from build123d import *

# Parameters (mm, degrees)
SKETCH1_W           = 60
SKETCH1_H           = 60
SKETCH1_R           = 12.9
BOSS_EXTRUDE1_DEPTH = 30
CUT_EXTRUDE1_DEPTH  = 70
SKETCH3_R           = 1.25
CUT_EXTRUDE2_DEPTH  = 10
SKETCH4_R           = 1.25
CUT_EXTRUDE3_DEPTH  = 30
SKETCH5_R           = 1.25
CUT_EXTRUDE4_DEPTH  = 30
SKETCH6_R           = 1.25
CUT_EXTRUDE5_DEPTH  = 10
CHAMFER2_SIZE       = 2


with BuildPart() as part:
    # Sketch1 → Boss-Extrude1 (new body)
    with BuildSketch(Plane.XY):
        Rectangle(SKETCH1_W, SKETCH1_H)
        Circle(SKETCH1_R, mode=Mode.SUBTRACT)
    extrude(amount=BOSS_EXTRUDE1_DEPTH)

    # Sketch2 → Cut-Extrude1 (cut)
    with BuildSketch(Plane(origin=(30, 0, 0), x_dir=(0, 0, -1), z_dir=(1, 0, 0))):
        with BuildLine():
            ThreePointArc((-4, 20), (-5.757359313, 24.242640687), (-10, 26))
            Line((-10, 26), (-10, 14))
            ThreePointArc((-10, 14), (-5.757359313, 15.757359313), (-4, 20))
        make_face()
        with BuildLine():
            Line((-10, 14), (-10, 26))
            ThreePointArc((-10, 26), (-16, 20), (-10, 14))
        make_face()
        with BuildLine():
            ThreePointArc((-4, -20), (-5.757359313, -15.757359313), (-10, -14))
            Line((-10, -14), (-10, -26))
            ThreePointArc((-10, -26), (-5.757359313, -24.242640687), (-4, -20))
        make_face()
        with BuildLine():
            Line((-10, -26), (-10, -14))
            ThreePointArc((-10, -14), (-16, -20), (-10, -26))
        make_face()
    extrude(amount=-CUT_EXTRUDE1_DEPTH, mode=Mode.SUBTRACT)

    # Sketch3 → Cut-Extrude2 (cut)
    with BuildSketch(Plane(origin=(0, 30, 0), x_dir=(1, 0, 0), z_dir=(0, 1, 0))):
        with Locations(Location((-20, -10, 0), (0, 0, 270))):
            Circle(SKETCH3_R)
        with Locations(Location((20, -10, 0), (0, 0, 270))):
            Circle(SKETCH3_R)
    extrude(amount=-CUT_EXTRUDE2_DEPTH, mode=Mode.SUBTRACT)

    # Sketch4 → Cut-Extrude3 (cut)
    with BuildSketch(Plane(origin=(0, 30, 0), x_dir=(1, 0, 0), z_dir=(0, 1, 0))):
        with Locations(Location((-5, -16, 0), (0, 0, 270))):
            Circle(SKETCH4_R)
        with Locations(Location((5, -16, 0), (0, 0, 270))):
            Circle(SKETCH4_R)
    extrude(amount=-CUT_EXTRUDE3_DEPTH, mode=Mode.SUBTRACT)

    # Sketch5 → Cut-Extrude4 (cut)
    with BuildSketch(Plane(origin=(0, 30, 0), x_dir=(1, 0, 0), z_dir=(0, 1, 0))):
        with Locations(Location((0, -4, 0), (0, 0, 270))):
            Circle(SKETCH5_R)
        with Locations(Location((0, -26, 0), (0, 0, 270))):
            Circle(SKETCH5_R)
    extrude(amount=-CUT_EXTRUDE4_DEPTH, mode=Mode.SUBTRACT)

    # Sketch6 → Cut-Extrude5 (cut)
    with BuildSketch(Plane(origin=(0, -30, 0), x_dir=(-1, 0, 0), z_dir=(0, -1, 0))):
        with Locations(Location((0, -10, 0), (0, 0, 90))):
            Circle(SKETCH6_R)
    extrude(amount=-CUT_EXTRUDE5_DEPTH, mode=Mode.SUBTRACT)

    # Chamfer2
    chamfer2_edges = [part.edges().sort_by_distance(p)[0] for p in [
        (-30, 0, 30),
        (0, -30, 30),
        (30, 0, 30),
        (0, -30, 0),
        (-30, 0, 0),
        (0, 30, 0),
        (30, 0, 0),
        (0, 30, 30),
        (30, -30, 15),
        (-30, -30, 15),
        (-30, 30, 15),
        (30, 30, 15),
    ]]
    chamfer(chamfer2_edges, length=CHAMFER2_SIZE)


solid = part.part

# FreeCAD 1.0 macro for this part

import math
import FreeCAD as App
import Part
import Sketcher
from FreeCAD import Vector


def edges_at(feature, points):
    """Names of the edges that pass closest to the given points."""
    edges = feature.Shape.Edges
    near = lambda p: min(range(len(edges)), key=lambda i: edges[i].distToShape(Part.Vertex(*p))[0])
    return sorted({f"Edge{near(p) + 1}" for p in points})


def add_polygon(sketch, points):
    """Adds a closed chain of lines whose ends are joined by coincident constraints."""
    first, n = sketch.GeometryCount, len(points)
    for a, b in zip(points, points[1:] + points[:1]):
        sketch.addGeometry(Part.LineSegment(App.Vector(*a, 0), App.Vector(*b, 0)), False)
    for i in range(n):
        sketch.addConstraint(Sketcher.Constraint("Coincident", first + i, 2, first + (i + 1) % n, 1))

doc = App.newDocument("Part")
body = doc.addObject("PartDesign::Body", "Body")

# Sketch on XY plane
sketch1 = body.newObject("Sketcher::SketchObject", "Sketch")
sketch1.AttachmentSupport = (doc.getObject("XY_Plane"), [""])
sketch1.MapMode = "FlatFace"
add_polygon(sketch1, [(-30, 30), (-30, -30), (30, -30), (30, 30)])  # lines 0-3
sketch1.addGeometry(Part.Circle(Vector(0, 0, 0), Vector(0, 0, 1), 13), False)  # 4
sketch1.addConstraint([
    Sketcher.Constraint("Vertical", 0),
    Sketcher.Constraint("Horizontal", 1),
    Sketcher.Constraint("Vertical", 2),
    Sketcher.Constraint("Horizontal", 3),
    Sketcher.Constraint("Coincident", 4, 3, -1, 1),
    Sketcher.Constraint("Symmetric", 0, 2, 2, 2, -1, 1),
    Sketcher.Constraint("Equal", 3, 0),
    Sketcher.Constraint("Diameter", 4, 25.8),
    Sketcher.Constraint("DistanceX", 1, 1, 1, 2, 60.0),
])
pad1 = body.newObject("PartDesign::Pad", "Pad")
pad1.Profile = sketch1
pad1.Length = 30

# Sketch on YZ plane
sketch2 = body.newObject("Sketcher::SketchObject", "Sketch001")
sketch2.AttachmentSupport = (doc.getObject("YZ_Plane"), [""])
sketch2.MapMode = "FlatFace"
sketch2.AttachmentOffset = App.Placement(Vector(0, 0, 30), App.Rotation())
sketch2.addGeometry([
    Part.ArcOfCircle(Part.Circle(Vector(20, 10, 0), Vector(0, 0, 1), 6), math.radians(-90), math.radians(0)),  # 0
    Part.ArcOfCircle(Part.Circle(Vector(20, 10, 0), Vector(0, 0, 1), 6), math.radians(0), math.radians(180)),  # 1
    Part.ArcOfCircle(Part.Circle(Vector(20, 10, 0), Vector(0, 0, 1), 6), math.radians(180), math.radians(270)),  # 2
    Part.ArcOfCircle(Part.Circle(Vector(-20, 10, 0), Vector(0, 0, 1), 6), math.radians(-90), math.radians(0)),  # 3
    Part.ArcOfCircle(Part.Circle(Vector(-20, 10, 0), Vector(0, 0, 1), 6), math.radians(0), math.radians(180)),  # 4
    Part.ArcOfCircle(Part.Circle(Vector(-20, 10, 0), Vector(0, 0, 1), 6), math.radians(180), math.radians(270)),  # 5
], False)
sketch2.addConstraint([
    Sketcher.Constraint("Tangent", 0, 2, 1, 1),
    Sketcher.Constraint("Tangent", 1, 2, 2, 1),
    Sketcher.Constraint("Tangent", 2, 2, 0, 1),
    Sketcher.Constraint("Tangent", 3, 2, 4, 1),
    Sketcher.Constraint("Tangent", 4, 2, 5, 1),
    Sketcher.Constraint("Tangent", 5, 2, 3, 1),
    Sketcher.Constraint("Equal", 2, 3),
    Sketcher.Constraint("Symmetric", 0, 3, 3, 3, -2),
    Sketcher.Constraint("Horizontal", 5, 3, 0, 2),
    Sketcher.Constraint("Horizontal", 0, 2, 1, 2),
    Sketcher.Constraint("Horizontal", 1, 2, 3, 2),
    Sketcher.Constraint("Horizontal", 3, 2, 4, 2),
    Sketcher.Constraint("Vertical", 1, 3, 2, 2),
    Sketcher.Constraint("Vertical", 4, 3, 5, 2),
    Sketcher.Constraint("Radius", 0, 6.0),
    Sketcher.Constraint("DistanceX", -1, 1, 0, 3, 20.0),
    Sketcher.Constraint("DistanceY", -1, 1, 0, 3, 10.0),
])
pocket1 = body.newObject("PartDesign::Pocket", "Pocket")
pocket1.Profile = sketch2
pocket1.Length = 70

# Sketch on XZ plane
sketch3 = body.newObject("Sketcher::SketchObject", "Sketch002")
sketch3.AttachmentSupport = (doc.getObject("XZ_Plane"), [""])
sketch3.MapMode = "FlatFace"
sketch3.AttachmentOffset = App.Placement(Vector(0, 0, -30), App.Rotation())
sketch3.addGeometry([
    Part.Circle(Vector(-20, 10, 0), Vector(0, 0, 1), 1.2),
    Part.Circle(Vector(20, 10, 0), Vector(0, 0, 1), 1.2),
], False)
sketch3.addConstraint([
    Sketcher.Constraint("Equal", 0, 1),
    Sketcher.Constraint("Symmetric", 0, 3, 1, 3, -2),
    Sketcher.Constraint("Diameter", 0, 2.5),
    Sketcher.Constraint("DistanceX", 0, 3, -1, 1, 20.0),
    Sketcher.Constraint("DistanceY", -1, 1, 0, 3, 10.0),
])
pocket2 = body.newObject("PartDesign::Pocket", "Pocket001")
pocket2.Profile = sketch3
pocket2.Length = 10
pocket2.Reversed = True

# Sketch on XZ plane
sketch4 = body.newObject("Sketcher::SketchObject", "Sketch003")
sketch4.AttachmentSupport = (doc.getObject("XZ_Plane"), [""])
sketch4.MapMode = "FlatFace"
sketch4.AttachmentOffset = App.Placement(Vector(0, 0, -30), App.Rotation())
sketch4.addGeometry([
    Part.Circle(Vector(-5, 16, 0), Vector(0, 0, 1), 1.2),
    Part.Circle(Vector(5, 16, 0), Vector(0, 0, 1), 1.2),
], False)
sketch4.addConstraint([
    Sketcher.Constraint("Equal", 0, 1),
    Sketcher.Constraint("Symmetric", 0, 3, 1, 3, -2),
    Sketcher.Constraint("Diameter", 0, 2.5),
    Sketcher.Constraint("DistanceX", 0, 3, -1, 1, 5.0),
    Sketcher.Constraint("DistanceY", -1, 1, 0, 3, 16.0),
])
pocket3 = body.newObject("PartDesign::Pocket", "Pocket002")
pocket3.Profile = sketch4
pocket3.Length = 30
pocket3.Reversed = True

# Sketch on XZ plane
sketch5 = body.newObject("Sketcher::SketchObject", "Sketch004")
sketch5.AttachmentSupport = (doc.getObject("XZ_Plane"), [""])
sketch5.MapMode = "FlatFace"
sketch5.AttachmentOffset = App.Placement(Vector(0, 0, -30), App.Rotation())
sketch5.addGeometry([
    Part.Circle(Vector(0, 4, 0), Vector(0, 0, 1), 1.2),
    Part.Circle(Vector(0, 26, 0), Vector(0, 0, 1), 1.2),
], False)
sketch5.addConstraint([
    Sketcher.Constraint("Equal", 0, 1),
    Sketcher.Constraint("PointOnObject", 0, 3, -2),
    Sketcher.Constraint("PointOnObject", 1, 3, -2),
    Sketcher.Constraint("Diameter", 0, 2.5),
    Sketcher.Constraint("DistanceY", -1, 1, 0, 3, 4.0),
    Sketcher.Constraint("DistanceY", -1, 1, 1, 3, 26.0),
])
pocket4 = body.newObject("PartDesign::Pocket", "Pocket003")
pocket4.Profile = sketch5
pocket4.Length = 30
pocket4.Reversed = True

# Sketch on XZ plane
sketch6 = body.newObject("Sketcher::SketchObject", "Sketch005")
sketch6.AttachmentSupport = (doc.getObject("XZ_Plane"), [""])
sketch6.MapMode = "FlatFace"
sketch6.AttachmentOffset = App.Placement(Vector(0, 0, 30), App.Rotation())
sketch6.addGeometry(Part.Circle(Vector(0, 10, 0), Vector(0, 0, 1), 1.2), False)
sketch6.addConstraint([
    Sketcher.Constraint("PointOnObject", 0, 3, -2),
    Sketcher.Constraint("Diameter", 0, 2.5),
    Sketcher.Constraint("DistanceY", -1, 1, 0, 3, 10.0),
])
pocket5 = body.newObject("PartDesign::Pocket", "Pocket004")
pocket5.Profile = sketch6
pocket5.Length = 10
doc.recompute()

chamfer = body.newObject("PartDesign::Chamfer", "Chamfer")
chamfer.Base = (pocket5, edges_at(pocket5, [
    (-30, 0, 30),
    (0, -30, 30),
    (30, 0, 30),
    (0, -30, 0),
    (-30, 0, 0),
    (0, 30, 0),
    (30, 0, 0),
    (0, 30, 30),
    (30, -30, 15),
    (-30, -30, 15),
    (-30, 30, 15),
    (30, 30, 15),
]))
chamfer.Size = 2

doc.recompute()
